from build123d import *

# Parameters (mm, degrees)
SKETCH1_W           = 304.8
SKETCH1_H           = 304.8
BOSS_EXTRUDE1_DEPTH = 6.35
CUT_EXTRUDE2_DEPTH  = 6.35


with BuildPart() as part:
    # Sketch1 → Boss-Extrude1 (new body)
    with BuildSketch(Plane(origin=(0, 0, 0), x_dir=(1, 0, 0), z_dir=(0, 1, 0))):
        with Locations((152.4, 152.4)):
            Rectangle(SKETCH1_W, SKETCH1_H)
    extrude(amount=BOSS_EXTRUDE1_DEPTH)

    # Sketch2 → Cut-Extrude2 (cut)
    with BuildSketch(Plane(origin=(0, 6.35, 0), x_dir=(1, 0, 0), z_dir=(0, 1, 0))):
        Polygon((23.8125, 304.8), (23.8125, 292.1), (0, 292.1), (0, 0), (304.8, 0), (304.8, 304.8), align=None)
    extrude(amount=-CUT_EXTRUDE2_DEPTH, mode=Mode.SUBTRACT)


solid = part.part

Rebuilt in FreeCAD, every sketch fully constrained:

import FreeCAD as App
import Part
import Sketcher

V = App.Vector
Q = App.Units.Quantity


def add_polygon(sketch, points):
    """Adds a closed chain of lines whose ends are joined by coincident constraints."""
    first, n = sketch.GeometryCount, len(points)
    for a, b in zip(points, points[1:] + points[:1]):
        sketch.addGeometry(Part.LineSegment(App.Vector(*a, 0), App.Vector(*b, 0)), False)
    for i in range(n):
        sketch.addConstraint(Sketcher.Constraint("Coincident", first + i, 2, first + (i + 1) % n, 1))

doc = App.newDocument("Part")
body = doc.addObject("PartDesign::Body", "Body")

sketch1 = doc.addObject("Sketcher::SketchObject", "Sketch")
body.addObject(sketch1)
sketch1.AttachmentSupport = (doc.XZ_Plane, [""])
sketch1.MapMode = "FlatFace"
add_polygon(sketch1, [(0, -305), (0, 0), (305, 0), (305, -305)])
sketch1.addConstraint(Sketcher.Constraint("Vertical", 0))
sketch1.addConstraint(Sketcher.Constraint("Horizontal", 1))
sketch1.addConstraint(Sketcher.Constraint("Vertical", 2))
sketch1.addConstraint(Sketcher.Constraint("Horizontal", 3))
sketch1.addConstraint(Sketcher.Constraint("Coincident", 0, 2, -1, 1))
sketch1.addConstraint(Sketcher.Constraint("Equal", 3, 0))
sketch1.addConstraint(Sketcher.Constraint("DistanceX", 1, 1, 1, 2, Q("12 in")))
pad1 = doc.addObject("PartDesign::Pad", "Pad")
body.addObject(pad1)
pad1.Profile = sketch1
pad1.Length = Q("0.25 in")
pad1.Reversed = True

sketch2 = doc.addObject("Sketcher::SketchObject", "Sketch001")
body.addObject(sketch2)
sketch2.AttachmentSupport = (doc.XZ_Plane, [""])
sketch2.MapMode = "FlatFace"
sketch2.AttachmentOffset = App.Placement(V(0, 0, -0.25 * 25.4), App.Rotation())
add_polygon(sketch2, [(24, -305), (24, -292), (0, -292), (0, 0), (305, 0), (305, -305)])
sketch2.addConstraint(Sketcher.Constraint("Vertical", 0))
sketch2.addConstraint(Sketcher.Constraint("Horizontal", 1))
sketch2.addConstraint(Sketcher.Constraint("Vertical", 2))
sketch2.addConstraint(Sketcher.Constraint("Horizontal", 3))
sketch2.addConstraint(Sketcher.Constraint("Vertical", 4))
sketch2.addConstraint(Sketcher.Constraint("Horizontal", 5))
sketch2.addConstraint(Sketcher.Constraint("Coincident", 2, 2, -1, 1))
sketch2.addConstraint(Sketcher.Constraint("Equal", 3, 4))
sketch2.addConstraint(Sketcher.Constraint("DistanceX", 3, 1, 3, 2, Q("12 in")))
sketch2.addConstraint(Sketcher.Constraint("DistanceY", 0, 1, 0, 2, Q("0.5 in")))
sketch2.addConstraint(Sketcher.Constraint("DistanceX", 1, 2, 1, 1, Q("0.9375 in")))
pocket1 = doc.addObject("PartDesign::Pocket", "Pocket")
body.addObject(pocket1)
pocket1.Profile = sketch2
pocket1.Length = Q("0.25 in")
pocket1.Reversed = True

doc.recompute()
